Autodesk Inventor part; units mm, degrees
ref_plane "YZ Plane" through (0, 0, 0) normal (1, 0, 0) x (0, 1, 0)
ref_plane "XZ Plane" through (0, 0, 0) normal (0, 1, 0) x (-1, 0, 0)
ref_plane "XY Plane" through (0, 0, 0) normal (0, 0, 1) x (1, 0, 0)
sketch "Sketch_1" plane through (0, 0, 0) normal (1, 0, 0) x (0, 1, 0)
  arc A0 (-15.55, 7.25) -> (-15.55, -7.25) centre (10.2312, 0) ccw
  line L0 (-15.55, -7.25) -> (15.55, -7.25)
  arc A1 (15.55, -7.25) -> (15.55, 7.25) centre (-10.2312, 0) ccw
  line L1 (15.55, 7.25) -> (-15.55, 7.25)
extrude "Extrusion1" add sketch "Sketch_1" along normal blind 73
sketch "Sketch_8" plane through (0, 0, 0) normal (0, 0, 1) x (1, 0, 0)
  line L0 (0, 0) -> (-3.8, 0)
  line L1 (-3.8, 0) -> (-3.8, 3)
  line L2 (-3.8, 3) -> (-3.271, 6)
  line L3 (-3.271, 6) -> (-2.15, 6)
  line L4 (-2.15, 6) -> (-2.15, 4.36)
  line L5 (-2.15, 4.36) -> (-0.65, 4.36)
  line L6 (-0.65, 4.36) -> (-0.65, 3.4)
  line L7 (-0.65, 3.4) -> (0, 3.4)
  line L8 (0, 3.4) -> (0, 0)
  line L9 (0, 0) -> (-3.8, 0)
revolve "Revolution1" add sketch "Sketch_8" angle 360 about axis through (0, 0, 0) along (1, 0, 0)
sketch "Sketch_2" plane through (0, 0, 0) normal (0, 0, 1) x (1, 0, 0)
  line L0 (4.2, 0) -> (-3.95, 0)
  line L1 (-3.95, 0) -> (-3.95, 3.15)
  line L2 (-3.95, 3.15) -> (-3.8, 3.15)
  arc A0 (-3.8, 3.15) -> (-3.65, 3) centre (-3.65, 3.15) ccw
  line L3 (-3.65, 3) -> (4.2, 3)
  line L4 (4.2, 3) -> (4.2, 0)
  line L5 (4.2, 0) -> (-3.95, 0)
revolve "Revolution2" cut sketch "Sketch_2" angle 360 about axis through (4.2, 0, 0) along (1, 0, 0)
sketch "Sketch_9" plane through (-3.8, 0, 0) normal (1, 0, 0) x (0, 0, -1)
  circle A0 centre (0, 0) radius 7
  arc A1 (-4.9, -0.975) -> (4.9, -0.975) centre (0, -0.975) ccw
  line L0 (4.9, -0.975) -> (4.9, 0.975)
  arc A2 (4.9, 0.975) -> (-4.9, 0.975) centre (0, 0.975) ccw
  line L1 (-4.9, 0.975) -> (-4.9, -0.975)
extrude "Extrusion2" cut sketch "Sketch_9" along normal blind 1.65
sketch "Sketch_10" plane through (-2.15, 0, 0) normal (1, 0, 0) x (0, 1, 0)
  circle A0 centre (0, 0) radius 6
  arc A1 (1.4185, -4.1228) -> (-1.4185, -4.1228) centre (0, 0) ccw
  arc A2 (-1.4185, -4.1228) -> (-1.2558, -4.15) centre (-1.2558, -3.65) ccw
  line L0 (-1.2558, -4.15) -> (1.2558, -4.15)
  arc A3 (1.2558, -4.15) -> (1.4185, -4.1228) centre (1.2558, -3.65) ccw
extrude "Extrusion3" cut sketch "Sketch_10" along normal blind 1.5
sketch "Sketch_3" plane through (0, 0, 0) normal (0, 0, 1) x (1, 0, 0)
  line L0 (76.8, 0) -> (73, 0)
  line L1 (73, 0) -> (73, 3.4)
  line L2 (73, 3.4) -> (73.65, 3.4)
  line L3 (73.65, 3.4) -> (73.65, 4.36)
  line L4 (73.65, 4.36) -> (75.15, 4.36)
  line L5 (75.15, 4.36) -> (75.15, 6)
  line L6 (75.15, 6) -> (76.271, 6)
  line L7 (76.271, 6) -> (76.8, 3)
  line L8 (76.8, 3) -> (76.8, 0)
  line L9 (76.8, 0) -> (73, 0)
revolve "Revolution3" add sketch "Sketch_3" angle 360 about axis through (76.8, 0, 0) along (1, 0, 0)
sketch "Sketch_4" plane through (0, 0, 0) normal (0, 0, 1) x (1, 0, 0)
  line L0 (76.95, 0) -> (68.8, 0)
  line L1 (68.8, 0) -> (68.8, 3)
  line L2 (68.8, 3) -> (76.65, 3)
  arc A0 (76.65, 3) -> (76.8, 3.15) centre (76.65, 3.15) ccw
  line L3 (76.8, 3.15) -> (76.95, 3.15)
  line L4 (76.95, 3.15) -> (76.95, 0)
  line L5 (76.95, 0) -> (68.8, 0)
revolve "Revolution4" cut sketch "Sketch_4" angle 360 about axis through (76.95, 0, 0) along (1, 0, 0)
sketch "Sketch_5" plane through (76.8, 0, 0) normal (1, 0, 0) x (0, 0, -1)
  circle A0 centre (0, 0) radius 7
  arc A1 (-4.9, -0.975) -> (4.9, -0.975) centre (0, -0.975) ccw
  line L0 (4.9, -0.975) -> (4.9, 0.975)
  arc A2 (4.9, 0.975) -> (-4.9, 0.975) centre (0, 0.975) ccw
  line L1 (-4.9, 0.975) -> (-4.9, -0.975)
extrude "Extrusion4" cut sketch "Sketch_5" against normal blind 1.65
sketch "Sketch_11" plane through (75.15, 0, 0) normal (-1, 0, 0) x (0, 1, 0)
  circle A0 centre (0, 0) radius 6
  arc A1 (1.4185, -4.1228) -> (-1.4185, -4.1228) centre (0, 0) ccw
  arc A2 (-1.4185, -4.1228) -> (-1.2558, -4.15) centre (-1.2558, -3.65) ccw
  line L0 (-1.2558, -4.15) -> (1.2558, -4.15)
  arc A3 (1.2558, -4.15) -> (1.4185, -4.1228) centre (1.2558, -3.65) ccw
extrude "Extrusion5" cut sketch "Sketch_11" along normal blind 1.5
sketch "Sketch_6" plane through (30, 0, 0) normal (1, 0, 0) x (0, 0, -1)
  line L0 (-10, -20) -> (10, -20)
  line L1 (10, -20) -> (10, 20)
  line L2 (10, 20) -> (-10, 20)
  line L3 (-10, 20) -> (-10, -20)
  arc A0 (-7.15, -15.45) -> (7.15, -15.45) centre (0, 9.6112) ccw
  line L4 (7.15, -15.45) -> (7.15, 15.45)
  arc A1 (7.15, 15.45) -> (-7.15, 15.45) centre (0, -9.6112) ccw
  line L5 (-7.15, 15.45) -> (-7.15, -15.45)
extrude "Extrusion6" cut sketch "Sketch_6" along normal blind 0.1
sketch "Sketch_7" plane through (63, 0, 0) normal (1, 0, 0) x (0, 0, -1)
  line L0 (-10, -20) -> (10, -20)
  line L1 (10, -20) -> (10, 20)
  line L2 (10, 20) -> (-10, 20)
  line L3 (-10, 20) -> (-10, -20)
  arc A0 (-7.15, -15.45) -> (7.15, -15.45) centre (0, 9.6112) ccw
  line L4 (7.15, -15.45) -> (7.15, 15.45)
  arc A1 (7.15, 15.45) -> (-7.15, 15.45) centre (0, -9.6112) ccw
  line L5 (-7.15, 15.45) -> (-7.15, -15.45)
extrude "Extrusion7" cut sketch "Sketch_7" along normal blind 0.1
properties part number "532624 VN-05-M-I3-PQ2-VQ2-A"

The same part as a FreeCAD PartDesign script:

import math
import FreeCAD as App
import Part
import Sketcher

V = App.Vector
Q = App.Units.Quantity

doc = App.newDocument("Part")
body = doc.addObject("PartDesign::Body", "Body")

sketch1 = body.newObject("Sketcher::SketchObject", "Sketch")
sketch1.AttachmentSupport = (doc.getObject("YZ_Plane"), [""])
sketch1.MapMode = "FlatFace"
sketch1.addGeometry(Part.LineSegment(V(15.55, 7.25, 0), V(-15.55, 7.25, 0)), False)
sketch1.addGeometry(Part.ArcOfCircle(Part.Circle(V(10.2312, 0, 0), V(0, 0, 1), 26.781202), math.radians(164.293344), math.radians(195.706656)), False)
sketch1.addGeometry(Part.LineSegment(V(-15.55, -7.25, 0), V(15.55, -7.25, 0)), False)
sketch1.addGeometry(Part.ArcOfCircle(Part.Circle(V(-10.2312, 0, 0), V(0, 0, 1), 26.781202), math.radians(-15.706656), math.radians(15.706656)), False)
sketch1.addConstraint(Sketcher.Constraint("Coincident", 0, 2, 1, 1))
sketch1.addConstraint(Sketcher.Constraint("Coincident", 1, 2, 2, 1))
sketch1.addConstraint(Sketcher.Constraint("Coincident", 2, 2, 3, 1))
sketch1.addConstraint(Sketcher.Constraint("Coincident", 3, 2, 0, 1))
sketch1.addConstraint(Sketcher.Constraint("Horizontal", 0))
sketch1.addConstraint(Sketcher.Constraint("Horizontal", 2))
sketch1.addConstraint(Sketcher.Constraint("Equal", 1, 3))
sketch1.addConstraint(Sketcher.Constraint("Symmetric", 1, 3, 3, 3, -1, 1))
sketch1.addConstraint(Sketcher.Constraint("Symmetric", 0, 2, 1, 2, -1))
sketch1.addConstraint(Sketcher.Constraint("DistanceX", 0, 2, 0, 1, Q("31.1 mm")))
sketch1.addConstraint(Sketcher.Constraint("Radius", 1, Q("26.7812 mm")))
sketch1.addConstraint(Sketcher.Constraint("DistanceY", 1, 2, 0, 2, Q("14.5 mm")))
pad1 = body.newObject("PartDesign::Pad", "Pad")
pad1.Profile = sketch1
pad1.Length = 73

sketch2 = body.newObject("Sketcher::SketchObject", "Sketch001")
sketch2.AttachmentSupport = (doc.getObject("XY_Plane"), [""])
sketch2.MapMode = "FlatFace"
sketch2.addGeometry(Part.LineSegment(V(-3.8, 0, 0), V(0, 0, 0)), False)
sketch2.addGeometry(Part.LineSegment(V(0, 0, 0), V(0, 3.4, 0)), False)
sketch2.addGeometry(Part.LineSegment(V(0, 3.4, 0), V(-0.65, 3.4, 0)), False)
sketch2.addGeometry(Part.LineSegment(V(-0.65, 3.4, 0), V(-0.65, 4.36, 0)), False)
sketch2.addGeometry(Part.LineSegment(V(-0.65, 4.36, 0), V(-2.15, 4.36, 0)), False)
sketch2.addGeometry(Part.LineSegment(V(-2.15, 4.36, 0), V(-2.15, 6, 0)), False)
sketch2.addGeometry(Part.LineSegment(V(-2.15, 6, 0), V(-3.271, 6, 0)), False)
sketch2.addGeometry(Part.LineSegment(V(-3.271, 6, 0), V(-3.8, 3, 0)), False)
sketch2.addGeometry(Part.LineSegment(V(-3.8, 3, 0), V(-3.8, 0, 0)), False)
sketch2.addConstraint(Sketcher.Constraint("Coincident", 0, 2, 1, 1))
sketch2.addConstraint(Sketcher.Constraint("Coincident", 1, 2, 2, 1))
sketch2.addConstraint(Sketcher.Constraint("Coincident", 2, 2, 3, 1))
sketch2.addConstraint(Sketcher.Constraint("Coincident", 3, 2, 4, 1))
sketch2.addConstraint(Sketcher.Constraint("Coincident", 4, 2, 5, 1))
sketch2.addConstraint(Sketcher.Constraint("Coincident", 5, 2, 6, 1))
sketch2.addConstraint(Sketcher.Constraint("Coincident", 6, 2, 7, 1))
sketch2.addConstraint(Sketcher.Constraint("Coincident", 7, 2, 8, 1))
sketch2.addConstraint(Sketcher.Constraint("Coincident", 8, 2, 0, 1))
sketch2.addConstraint(Sketcher.Constraint("Horizontal", 0))
sketch2.addConstraint(Sketcher.Constraint("Vertical", 1))
sketch2.addConstraint(Sketcher.Constraint("Horizontal", 2))
sketch2.addConstraint(Sketcher.Constraint("Vertical", 3))
sketch2.addConstraint(Sketcher.Constraint("Horizontal", 4))
sketch2.addConstraint(Sketcher.Constraint("Vertical", 5))
sketch2.addConstraint(Sketcher.Constraint("Horizontal", 6))
sketch2.addConstraint(Sketcher.Constraint("Vertical", 8))
sketch2.addConstraint(Sketcher.Constraint("Coincident", 0, 2, -1, 1))
sketch2.addConstraint(Sketcher.Constraint("DistanceY", 8, 2, 8, 1, Q("3 mm")))
sketch2.addConstraint(Sketcher.Constraint("Angle", 7, Q("-100.0004 deg")))
sketch2.addConstraint(Sketcher.Constraint("DistanceX", 0, 1, 0, 2, Q("3.8 mm")))
sketch2.addConstraint(Sketcher.Constraint("DistanceX", 4, 2, 4, 1, Q("1.5 mm")))
sketch2.addConstraint(Sketcher.Constraint("DistanceY", 1, 1, 1, 2, Q("3.4 mm")))
sketch2.addConstraint(Sketcher.Constraint("DistanceY", -1, 1, 5, 2, Q("6 mm")))
sketch2.addConstraint(Sketcher.Constraint("DistanceX", 2, 2, 2, 1, Q("0.65 mm")))
sketch2.addConstraint(Sketcher.Constraint("DistanceY", 3, 1, 3, 2, Q("0.96 mm")))
revolution = body.newObject("PartDesign::Revolution", "Revolution")
revolution.Profile = sketch2
revolution.ReferenceAxis = (sketch2, ["H_Axis"])
revolution.Angle = 360

sketch3 = body.newObject("Sketcher::SketchObject", "Sketch002")
sketch3.AttachmentSupport = (doc.getObject("XY_Plane"), [""])
sketch3.MapMode = "FlatFace"
sketch3.addGeometry(Part.LineSegment(V(-3.95, 0, 0), V(4.2, 0, 0)), False)
sketch3.addGeometry(Part.LineSegment(V(4.2, 0, 0), V(4.2, 3, 0)), False)
sketch3.addGeometry(Part.LineSegment(V(4.2, 3, 0), V(-3.65, 3, 0)), False)
sketch3.addGeometry(Part.ArcOfCircle(Part.Circle(V(-3.65, 3.15, 0), V(0, 0, 1), 0.15), math.radians(180), math.radians(270)), False)
sketch3.addGeometry(Part.LineSegment(V(-3.8, 3.15, 0), V(-3.95, 3.15, 0)), False)
sketch3.addGeometry(Part.LineSegment(V(-3.95, 3.15, 0), V(-3.95, 0, 0)), False)
sketch3.addConstraint(Sketcher.Constraint("Coincident", 0, 2, 1, 1))
sketch3.addConstraint(Sketcher.Constraint("Coincident", 1, 2, 2, 1))
sketch3.addConstraint(Sketcher.Constraint("Tangent", 2, 2, 3, 2))
sketch3.addConstraint(Sketcher.Constraint("Coincident", 3, 1, 4, 1))
sketch3.addConstraint(Sketcher.Constraint("Coincident", 4, 2, 5, 1))
sketch3.addConstraint(Sketcher.Constraint("Coincident", 5, 2, 0, 1))
sketch3.addConstraint(Sketcher.Constraint("Horizontal", 0))
sketch3.addConstraint(Sketcher.Constraint("Vertical", 1))
sketch3.addConstraint(Sketcher.Constraint("Horizontal", 2))
sketch3.addConstraint(Sketcher.Constraint("Horizontal", 4))
sketch3.addConstraint(Sketcher.Constraint("Vertical", 5))
sketch3.addConstraint(Sketcher.Constraint("PointOnObject", 0, 2, -1))
sketch3.addConstraint(Sketcher.Constraint("DistanceY", 1, 1, 1, 2, Q("3 mm")))
sketch3.addConstraint(Sketcher.Constraint("Radius", 3, Q("0.15 mm")))
sketch3.addConstraint(Sketcher.Constraint("DistanceX", 3, 1, 1, 2, Q("8 mm")))
sketch3.addConstraint(Sketcher.Constraint("DistanceX", 0, 1, 0, 2, Q("8.15 mm")))
sketch3.addConstraint(Sketcher.Constraint("DistanceY", 5, 2, 5, 1, Q("3.15 mm")))
sketch3.addConstraint(Sketcher.Constraint("DistanceX", -1, 1, 0, 2, Q("4.2 mm")))
groove = body.newObject("PartDesign::Groove", "Groove")
groove.Profile = sketch3
groove.ReferenceAxis = (sketch3, ["H_Axis"])
groove.Angle = 360

sketch4 = body.newObject("Sketcher::SketchObject", "Sketch003")
sketch4.AttachmentSupport = (doc.getObject("YZ_Plane"), [""])
sketch4.MapMode = "FlatFace"
sketch4.AttachmentOffset = App.Placement(V(0, 0, -3.8), App.Rotation())
sketch4.addGeometry(Part.Circle(V(0, 0, 0), V(0, 0, 1), 7), False)
sketch4.addGeometry(Part.ArcOfCircle(Part.Circle(V(-0.975, 0, 0), V(0, 0, 1), 4.9), math.radians(90), math.radians(270)), False)
sketch4.addGeometry(Part.LineSegment(V(-0.975, 4.9, 0), V(0.975, 4.9, 0)), False)
sketch4.addGeometry(Part.ArcOfCircle(Part.Circle(V(0.975, 0, 0), V(0, 0, 1), 4.9), math.radians(-90), math.radians(90)), False)
sketch4.addGeometry(Part.LineSegment(V(0.975, -4.9, 0), V(-0.975, -4.9, 0)), False)
sketch4.addConstraint(Sketcher.Constraint("Tangent", 1, 1, 2, 1))
sketch4.addConstraint(Sketcher.Constraint("Tangent", 2, 2, 3, 2))
sketch4.addConstraint(Sketcher.Constraint("Tangent", 3, 1, 4, 1))
sketch4.addConstraint(Sketcher.Constraint("Tangent", 4, 2, 1, 2))
sketch4.addConstraint(Sketcher.Constraint("Horizontal", 2))
sketch4.addConstraint(Sketcher.Constraint("Horizontal", 4))
sketch4.addConstraint(Sketcher.Constraint("Coincident", 0, 3, -1, 1))
sketch4.addConstraint(Sketcher.Constraint("Symmetric", 1, 3, 3, 3, -1, 1))
sketch4.addConstraint(Sketcher.Constraint("Diameter", 0, Q("14 mm")))
sketch4.addConstraint(Sketcher.Constraint("Radius", 1, Q("4.9 mm")))
sketch4.addConstraint(Sketcher.Constraint("DistanceX", 2, 1, 2, 2, Q("1.95 mm")))
pocket1 = body.newObject("PartDesign::Pocket", "Pocket")
pocket1.Profile = sketch4
pocket1.Length = 1.65
pocket1.Reversed = True

sketch5 = body.newObject("Sketcher::SketchObject", "Sketch004")
sketch5.AttachmentSupport = (doc.getObject("YZ_Plane"), [""])
sketch5.MapMode = "FlatFace"
sketch5.AttachmentOffset = App.Placement(V(0, 0, -2.15), App.Rotation())
sketch5.addGeometry(Part.Circle(V(0, 0, 0), V(0, 0, 1), 6), False)
sketch5.addGeometry(Part.ArcOfCircle(Part.Circle(V(0, 0, 0), V(0, 0, 1), 4.360003), math.radians(-71.013592), math.radians(251.013592)), False)
sketch5.addGeometry(Part.ArcOfCircle(Part.Circle(V(1.2558, -3.65, 0), V(0, 0, 1), 0.5), math.radians(-90), math.radians(-71.010628)), False)
sketch5.addGeometry(Part.LineSegment(V(1.2558, -4.15, 0), V(-1.2558, -4.15, 0)), False)
sketch5.addGeometry(Part.ArcOfCircle(Part.Circle(V(-1.2558, -3.65, 0), V(0, 0, 1), 0.500011), math.radians(-108.989372), math.radians(-90)), False)
sketch5.addConstraint(Sketcher.Constraint("Tangent", 1, 1, 2, 2))
sketch5.addConstraint(Sketcher.Constraint("Tangent", 2, 1, 3, 1))
sketch5.addConstraint(Sketcher.Constraint("Tangent", 3, 2, 4, 2))
sketch5.addConstraint(Sketcher.Constraint("Tangent", 4, 1, 1, 2))
sketch5.addConstraint(Sketcher.Constraint("Horizontal", 3))
sketch5.addConstraint(Sketcher.Constraint("Coincident", 0, 3, -1, 1))
sketch5.addConstraint(Sketcher.Constraint("Coincident", 1, 3, -1, 1))
sketch5.addConstraint(Sketcher.Constraint("Equal", 2, 4))
sketch5.addConstraint(Sketcher.Constraint("Diameter", 0, Q("12 mm")))
sketch5.addConstraint(Sketcher.Constraint("Radius", 2, Q("0.5 mm")))
sketch5.addConstraint(Sketcher.Constraint("Radius", 1, Q("4.36 mm")))
sketch5.addConstraint(Sketcher.Constraint("DistanceY", 2, 3, -1, 1, Q("3.65 mm")))
pocket2 = body.newObject("PartDesign::Pocket", "Pocket001")
pocket2.Profile = sketch5
pocket2.Length = 1.5
pocket2.Reversed = True

sketch6 = body.newObject("Sketcher::SketchObject", "Sketch005")
sketch6.AttachmentSupport = (doc.getObject("XY_Plane"), [""])
sketch6.MapMode = "FlatFace"
sketch6.addGeometry(Part.LineSegment(V(73, 0, 0), V(76.8, 0, 0)), False)
sketch6.addGeometry(Part.LineSegment(V(76.8, 0, 0), V(76.8, 3, 0)), False)
sketch6.addGeometry(Part.LineSegment(V(76.8, 3, 0), V(76.271, 6, 0)), False)
sketch6.addGeometry(Part.LineSegment(V(76.271, 6, 0), V(75.15, 6, 0)), False)
sketch6.addGeometry(Part.LineSegment(V(75.15, 6, 0), V(75.15, 4.36, 0)), False)
sketch6.addGeometry(Part.LineSegment(V(75.15, 4.36, 0), V(73.65, 4.36, 0)), False)
sketch6.addGeometry(Part.LineSegment(V(73.65, 4.36, 0), V(73.65, 3.4, 0)), False)
sketch6.addGeometry(Part.LineSegment(V(73.65, 3.4, 0), V(73, 3.4, 0)), False)
sketch6.addGeometry(Part.LineSegment(V(73, 3.4, 0), V(73, 0, 0)), False)
sketch6.addConstraint(Sketcher.Constraint("Coincident", 0, 2, 1, 1))
sketch6.addConstraint(Sketcher.Constraint("Coincident", 1, 2, 2, 1))
sketch6.addConstraint(Sketcher.Constraint("Coincident", 2, 2, 3, 1))
sketch6.addConstraint(Sketcher.Constraint("Coincident", 3, 2, 4, 1))
sketch6.addConstraint(Sketcher.Constraint("Coincident", 4, 2, 5, 1))
sketch6.addConstraint(Sketcher.Constraint("Coincident", 5, 2, 6, 1))
sketch6.addConstraint(Sketcher.Constraint("Coincident", 6, 2, 7, 1))
sketch6.addConstraint(Sketcher.Constraint("Coincident", 7, 2, 8, 1))
sketch6.addConstraint(Sketcher.Constraint("Coincident", 8, 2, 0, 1))
sketch6.addConstraint(Sketcher.Constraint("Horizontal", 0))
sketch6.addConstraint(Sketcher.Constraint("Vertical", 1))
sketch6.addConstraint(Sketcher.Constraint("Horizontal", 3))
sketch6.addConstraint(Sketcher.Constraint("Vertical", 4))
sketch6.addConstraint(Sketcher.Constraint("Horizontal", 5))
sketch6.addConstraint(Sketcher.Constraint("Vertical", 6))
sketch6.addConstraint(Sketcher.Constraint("Horizontal", 7))
sketch6.addConstraint(Sketcher.Constraint("Vertical", 8))
sketch6.addConstraint(Sketcher.Constraint("PointOnObject", 0, 2, -1))
sketch6.addConstraint(Sketcher.Constraint("DistanceY", 1, 1, 1, 2, Q("3 mm")))
sketch6.addConstraint(Sketcher.Constraint("Angle", 2, Q("100.0004 deg")))
sketch6.addConstraint(Sketcher.Constraint("DistanceX", 0, 1, 0, 2, Q("3.8 mm")))
sketch6.addConstraint(Sketcher.Constraint("DistanceX", 5, 2, 5, 1, Q("1.5 mm")))
sketch6.addConstraint(Sketcher.Constraint("DistanceY", 8, 2, 8, 1, Q("3.4 mm")))
sketch6.addConstraint(Sketcher.Constraint("DistanceY", -1, 1, 2, 2, Q("6 mm")))
sketch6.addConstraint(Sketcher.Constraint("DistanceX", -1, 1, 7, 2, Q("73 mm")))
sketch6.addConstraint(Sketcher.Constraint("DistanceX", 7, 2, 7, 1, Q("0.65 mm")))
sketch6.addConstraint(Sketcher.Constraint("DistanceY", 4, 2, 4, 1, Q("1.64 mm")))
revolution2 = body.newObject("PartDesign::Revolution", "Revolution001")
revolution2.Profile = sketch6
revolution2.ReferenceAxis = (sketch6, ["H_Axis"])
revolution2.Angle = 360

sketch7 = body.newObject("Sketcher::SketchObject", "Sketch006")
sketch7.AttachmentSupport = (doc.getObject("XY_Plane"), [""])
sketch7.MapMode = "FlatFace"
sketch7.addGeometry(Part.LineSegment(V(68.8, 0, 0), V(76.95, 0, 0)), False)
sketch7.addGeometry(Part.LineSegment(V(76.95, 0, 0), V(76.95, 3.15, 0)), False)
sketch7.addGeometry(Part.LineSegment(V(76.95, 3.15, 0), V(76.8, 3.15, 0)), False)
sketch7.addGeometry(Part.ArcOfCircle(Part.Circle(V(76.65, 3.15, 0), V(0, 0, 1), 0.15), math.radians(-90), math.radians(0)), False)
sketch7.addGeometry(Part.LineSegment(V(76.65, 3, 0), V(68.8, 3, 0)), False)
sketch7.addGeometry(Part.LineSegment(V(68.8, 3, 0), V(68.8, 0, 0)), False)
sketch7.addConstraint(Sketcher.Constraint("Coincident", 0, 2, 1, 1))
sketch7.addConstraint(Sketcher.Constraint("Coincident", 1, 2, 2, 1))
sketch7.addConstraint(Sketcher.Constraint("Coincident", 2, 2, 3, 2))
sketch7.addConstraint(Sketcher.Constraint("Tangent", 3, 1, 4, 1))
sketch7.addConstraint(Sketcher.Constraint("Coincident", 4, 2, 5, 1))
sketch7.addConstraint(Sketcher.Constraint("Coincident", 5, 2, 0, 1))
sketch7.addConstraint(Sketcher.Constraint("Horizontal", 0))
sketch7.addConstraint(Sketcher.Constraint("Vertical", 1))
sketch7.addConstraint(Sketcher.Constraint("Horizontal", 2))
sketch7.addConstraint(Sketcher.Constraint("Horizontal", 4))
sketch7.addConstraint(Sketcher.Constraint("Vertical", 5))
sketch7.addConstraint(Sketcher.Constraint("PointOnObject", 0, 2, -1))
sketch7.addConstraint(Sketcher.Constraint("Horizontal", 3, 3, 1, 2))
sketch7.addConstraint(Sketcher.Constraint("DistanceY", 5, 2, 5, 1, Q("3 mm")))
sketch7.addConstraint(Sketcher.Constraint("Radius", 3, Q("0.15 mm")))
sketch7.addConstraint(Sketcher.Constraint("DistanceX", 4, 2, 2, 2, Q("8 mm")))
sketch7.addConstraint(Sketcher.Constraint("DistanceX", 0, 1, 0, 2, Q("8.15 mm")))
sketch7.addConstraint(Sketcher.Constraint("DistanceX", -1, 1, 2, 2, Q("76.8 mm")))
groove2 = body.newObject("PartDesign::Groove", "Groove001")
groove2.Profile = sketch7
groove2.ReferenceAxis = (sketch7, ["H_Axis"])
groove2.Angle = 360

sketch8 = body.newObject("Sketcher::SketchObject", "Sketch007")
sketch8.AttachmentSupport = (doc.getObject("YZ_Plane"), [""])
sketch8.MapMode = "FlatFace"
sketch8.AttachmentOffset = App.Placement(V(0, 0, 76.8), App.Rotation())
sketch8.addGeometry(Part.Circle(V(0, 0, 0), V(0, 0, 1), 7), False)
sketch8.addGeometry(Part.ArcOfCircle(Part.Circle(V(-0.975, 0, 0), V(0, 0, 1), 4.9), math.radians(90), math.radians(270)), False)
sketch8.addGeometry(Part.LineSegment(V(-0.975, 4.9, 0), V(0.975, 4.9, 0)), False)
sketch8.addGeometry(Part.ArcOfCircle(Part.Circle(V(0.975, 0, 0), V(0, 0, 1), 4.9), math.radians(-90), math.radians(90)), False)
sketch8.addGeometry(Part.LineSegment(V(0.975, -4.9, 0), V(-0.975, -4.9, 0)), False)
sketch8.addConstraint(Sketcher.Constraint("Tangent", 1, 1, 2, 1))
sketch8.addConstraint(Sketcher.Constraint("Tangent", 2, 2, 3, 2))
sketch8.addConstraint(Sketcher.Constraint("Tangent", 3, 1, 4, 1))
sketch8.addConstraint(Sketcher.Constraint("Tangent", 4, 2, 1, 2))
sketch8.addConstraint(Sketcher.Constraint("Horizontal", 2))
sketch8.addConstraint(Sketcher.Constraint("Horizontal", 4))
sketch8.addConstraint(Sketcher.Constraint("Coincident", 0, 3, -1, 1))
sketch8.addConstraint(Sketcher.Constraint("Symmetric", 1, 3, 3, 3, -1, 1))
sketch8.addConstraint(Sketcher.Constraint("Diameter", 0, Q("14 mm")))
sketch8.addConstraint(Sketcher.Constraint("Radius", 1, Q("4.9 mm")))
sketch8.addConstraint(Sketcher.Constraint("DistanceX", 2, 1, 2, 2, Q("1.95 mm")))
pocket3 = body.newObject("PartDesign::Pocket", "Pocket002")
pocket3.Profile = sketch8
pocket3.Length = 1.65

sketch9 = body.newObject("Sketcher::SketchObject", "Sketch008")
sketch9.AttachmentSupport = (doc.getObject("YZ_Plane"), [""])
sketch9.MapMode = "FlatFace"
sketch9.AttachmentOffset = App.Placement(V(0, 0, 75.15), App.Rotation())
sketch9.addGeometry(Part.Circle(V(0, 0, 0), V(0, 0, 1), 6), False)
sketch9.addGeometry(Part.ArcOfCircle(Part.Circle(V(0, 0, 0), V(0, 0, 1), 4.360003), math.radians(108.986408), math.radians(431.013592)), False)
sketch9.addGeometry(Part.ArcOfCircle(Part.Circle(V(1.2558, 3.65, 0), V(0, 0, 1), 0.5), math.radians(71.010628), math.radians(90)), False)
sketch9.addGeometry(Part.LineSegment(V(1.2558, 4.15, 0), V(-1.2558, 4.15, 0)), False)
sketch9.addGeometry(Part.ArcOfCircle(Part.Circle(V(-1.2558, 3.65, 0), V(0, 0, 1), 0.500011), math.radians(90), math.radians(108.989372)), False)
sketch9.addConstraint(Sketcher.Constraint("Tangent", 1, 2, 2, 1))
sketch9.addConstraint(Sketcher.Constraint("Tangent", 2, 2, 3, 1))
sketch9.addConstraint(Sketcher.Constraint("Tangent", 3, 2, 4, 1))
sketch9.addConstraint(Sketcher.Constraint("Tangent", 4, 2, 1, 1))
sketch9.addConstraint(Sketcher.Constraint("Horizontal", 3))
sketch9.addConstraint(Sketcher.Constraint("Coincident", 0, 3, -1, 1))
sketch9.addConstraint(Sketcher.Constraint("Coincident", 1, 3, -1, 1))
sketch9.addConstraint(Sketcher.Constraint("Equal", 2, 4))
sketch9.addConstraint(Sketcher.Constraint("Diameter", 0, Q("12 mm")))
sketch9.addConstraint(Sketcher.Constraint("Radius", 2, Q("0.5 mm")))
sketch9.addConstraint(Sketcher.Constraint("Radius", 1, Q("4.36 mm")))
sketch9.addConstraint(Sketcher.Constraint("DistanceY", -1, 1, 2, 3, Q("3.65 mm")))
pocket4 = body.newObject("PartDesign::Pocket", "Pocket003")
pocket4.Profile = sketch9
pocket4.Length = 1.5

sketch10 = body.newObject("Sketcher::SketchObject", "Sketch009")
sketch10.AttachmentSupport = (doc.getObject("YZ_Plane"), [""])
sketch10.MapMode = "FlatFace"
sketch10.AttachmentOffset = App.Placement(V(0, 0, 30), App.Rotation())
sketch10.addGeometry(Part.LineSegment(V(20, 10, 0), V(-20, 10, 0)), False)
sketch10.addGeometry(Part.LineSegment(V(-20, 10, 0), V(-20, -10, 0)), False)
sketch10.addGeometry(Part.LineSegment(V(-20, -10, 0), V(20, -10, 0)), False)
sketch10.addGeometry(Part.LineSegment(V(20, -10, 0), V(20, 10, 0)), False)
sketch10.addGeometry(Part.ArcOfCircle(Part.Circle(V(9.6112, 0, 0), V(0, 0, 1), 26.061202), math.radians(164.076468), math.radians(195.923532)), False)
sketch10.addGeometry(Part.LineSegment(V(-15.45, 7.15, 0), V(15.45, 7.15, 0)), False)
sketch10.addGeometry(Part.ArcOfCircle(Part.Circle(V(-9.6112, 0, 0), V(0, 0, 1), 26.061202), math.radians(-15.923532), math.radians(15.923532)), False)
sketch10.addGeometry(Part.LineSegment(V(15.45, -7.15, 0), V(-15.45, -7.15, 0)), False)
sketch10.addConstraint(Sketcher.Constraint("Coincident", 0, 2, 1, 1))
sketch10.addConstraint(Sketcher.Constraint("Coincident", 1, 2, 2, 1))
sketch10.addConstraint(Sketcher.Constraint("Coincident", 2, 2, 3, 1))
sketch10.addConstraint(Sketcher.Constraint("Coincident", 3, 2, 0, 1))
sketch10.addConstraint(Sketcher.Constraint("Coincident", 4, 1, 5, 1))
sketch10.addConstraint(Sketcher.Constraint("Coincident", 5, 2, 6, 2))
sketch10.addConstraint(Sketcher.Constraint("Coincident", 6, 1, 7, 1))
sketch10.addConstraint(Sketcher.Constraint("Coincident", 7, 2, 4, 2))
sketch10.addConstraint(Sketcher.Constraint("Horizontal", 0))
sketch10.addConstraint(Sketcher.Constraint("Vertical", 1))
sketch10.addConstraint(Sketcher.Constraint("Horizontal", 2))
sketch10.addConstraint(Sketcher.Constraint("Vertical", 3))
sketch10.addConstraint(Sketcher.Constraint("Horizontal", 5))
sketch10.addConstraint(Sketcher.Constraint("Horizontal", 7))
sketch10.addConstraint(Sketcher.Constraint("Equal", 4, 6))
sketch10.addConstraint(Sketcher.Constraint("Symmetric", 4, 3, 6, 3, -1, 1))
sketch10.addConstraint(Sketcher.Constraint("Symmetric", 0, 2, 2, 2, -1, 1))
sketch10.addConstraint(Sketcher.Constraint("Symmetric", 5, 2, 6, 1, -1))
sketch10.addConstraint(Sketcher.Constraint("DistanceX", 0, 2, 0, 1, Q("40 mm")))
sketch10.addConstraint(Sketcher.Constraint("DistanceY", 1, 2, 1, 1, Q("20 mm")))
sketch10.addConstraint(Sketcher.Constraint("DistanceX", 5, 1, 5, 2, Q("30.9 mm")))
sketch10.addConstraint(Sketcher.Constraint("Radius", 4, Q("26.0612 mm")))
sketch10.addConstraint(Sketcher.Constraint("DistanceY", 6, 1, 5, 2, Q("14.3 mm")))
pocket5 = body.newObject("PartDesign::Pocket", "Pocket004")
pocket5.Profile = sketch10
pocket5.Length = 0.1
pocket5.Reversed = True

sketch11 = body.newObject("Sketcher::SketchObject", "Sketch010")
sketch11.AttachmentSupport = (doc.getObject("YZ_Plane"), [""])
sketch11.MapMode = "FlatFace"
sketch11.AttachmentOffset = App.Placement(V(0, 0, 63), App.Rotation())
sketch11.addGeometry(Part.LineSegment(V(20, 10, 0), V(-20, 10, 0)), False)
sketch11.addGeometry(Part.LineSegment(V(-20, 10, 0), V(-20, -10, 0)), False)
sketch11.addGeometry(Part.LineSegment(V(-20, -10, 0), V(20, -10, 0)), False)
sketch11.addGeometry(Part.LineSegment(V(20, -10, 0), V(20, 10, 0)), False)
sketch11.addGeometry(Part.ArcOfCircle(Part.Circle(V(9.6112, 0, 0), V(0, 0, 1), 26.061202), math.radians(164.076468), math.radians(195.923532)), False)
sketch11.addGeometry(Part.LineSegment(V(-15.45, 7.15, 0), V(15.45, 7.15, 0)), False)
sketch11.addGeometry(Part.ArcOfCircle(Part.Circle(V(-9.6112, 0, 0), V(0, 0, 1), 26.061202), math.radians(-15.923532), math.radians(15.923532)), False)
sketch11.addGeometry(Part.LineSegment(V(15.45, -7.15, 0), V(-15.45, -7.15, 0)), False)
sketch11.addConstraint(Sketcher.Constraint("Coincident", 0, 2, 1, 1))
sketch11.addConstraint(Sketcher.Constraint("Coincident", 1, 2, 2, 1))
sketch11.addConstraint(Sketcher.Constraint("Coincident", 2, 2, 3, 1))
sketch11.addConstraint(Sketcher.Constraint("Coincident", 3, 2, 0, 1))
sketch11.addConstraint(Sketcher.Constraint("Coincident", 4, 1, 5, 1))
sketch11.addConstraint(Sketcher.Constraint("Coincident", 5, 2, 6, 2))
sketch11.addConstraint(Sketcher.Constraint("Coincident", 6, 1, 7, 1))
sketch11.addConstraint(Sketcher.Constraint("Coincident", 7, 2, 4, 2))
sketch11.addConstraint(Sketcher.Constraint("Horizontal", 0))
sketch11.addConstraint(Sketcher.Constraint("Vertical", 1))
sketch11.addConstraint(Sketcher.Constraint("Horizontal", 2))
sketch11.addConstraint(Sketcher.Constraint("Vertical", 3))
sketch11.addConstraint(Sketcher.Constraint("Horizontal", 5))
sketch11.addConstraint(Sketcher.Constraint("Horizontal", 7))
sketch11.addConstraint(Sketcher.Constraint("Equal", 4, 6))
sketch11.addConstraint(Sketcher.Constraint("Symmetric", 4, 3, 6, 3, -1, 1))
sketch11.addConstraint(Sketcher.Constraint("Symmetric", 0, 2, 2, 2, -1, 1))
sketch11.addConstraint(Sketcher.Constraint("Symmetric", 5, 2, 6, 1, -1))
sketch11.addConstraint(Sketcher.Constraint("DistanceX", 0, 2, 0, 1, Q("40 mm")))
sketch11.addConstraint(Sketcher.Constraint("DistanceY", 1, 2, 1, 1, Q("20 mm")))
sketch11.addConstraint(Sketcher.Constraint("DistanceX", 5, 1, 5, 2, Q("30.9 mm")))
sketch11.addConstraint(Sketcher.Constraint("Radius", 4, Q("26.0612 mm")))
sketch11.addConstraint(Sketcher.Constraint("DistanceY", 6, 1, 5, 2, Q("14.3 mm")))
pocket6 = body.newObject("PartDesign::Pocket", "Pocket005")
pocket6.Profile = sketch11
pocket6.Length = 0.1
pocket6.Reversed = True

doc.recompute()
